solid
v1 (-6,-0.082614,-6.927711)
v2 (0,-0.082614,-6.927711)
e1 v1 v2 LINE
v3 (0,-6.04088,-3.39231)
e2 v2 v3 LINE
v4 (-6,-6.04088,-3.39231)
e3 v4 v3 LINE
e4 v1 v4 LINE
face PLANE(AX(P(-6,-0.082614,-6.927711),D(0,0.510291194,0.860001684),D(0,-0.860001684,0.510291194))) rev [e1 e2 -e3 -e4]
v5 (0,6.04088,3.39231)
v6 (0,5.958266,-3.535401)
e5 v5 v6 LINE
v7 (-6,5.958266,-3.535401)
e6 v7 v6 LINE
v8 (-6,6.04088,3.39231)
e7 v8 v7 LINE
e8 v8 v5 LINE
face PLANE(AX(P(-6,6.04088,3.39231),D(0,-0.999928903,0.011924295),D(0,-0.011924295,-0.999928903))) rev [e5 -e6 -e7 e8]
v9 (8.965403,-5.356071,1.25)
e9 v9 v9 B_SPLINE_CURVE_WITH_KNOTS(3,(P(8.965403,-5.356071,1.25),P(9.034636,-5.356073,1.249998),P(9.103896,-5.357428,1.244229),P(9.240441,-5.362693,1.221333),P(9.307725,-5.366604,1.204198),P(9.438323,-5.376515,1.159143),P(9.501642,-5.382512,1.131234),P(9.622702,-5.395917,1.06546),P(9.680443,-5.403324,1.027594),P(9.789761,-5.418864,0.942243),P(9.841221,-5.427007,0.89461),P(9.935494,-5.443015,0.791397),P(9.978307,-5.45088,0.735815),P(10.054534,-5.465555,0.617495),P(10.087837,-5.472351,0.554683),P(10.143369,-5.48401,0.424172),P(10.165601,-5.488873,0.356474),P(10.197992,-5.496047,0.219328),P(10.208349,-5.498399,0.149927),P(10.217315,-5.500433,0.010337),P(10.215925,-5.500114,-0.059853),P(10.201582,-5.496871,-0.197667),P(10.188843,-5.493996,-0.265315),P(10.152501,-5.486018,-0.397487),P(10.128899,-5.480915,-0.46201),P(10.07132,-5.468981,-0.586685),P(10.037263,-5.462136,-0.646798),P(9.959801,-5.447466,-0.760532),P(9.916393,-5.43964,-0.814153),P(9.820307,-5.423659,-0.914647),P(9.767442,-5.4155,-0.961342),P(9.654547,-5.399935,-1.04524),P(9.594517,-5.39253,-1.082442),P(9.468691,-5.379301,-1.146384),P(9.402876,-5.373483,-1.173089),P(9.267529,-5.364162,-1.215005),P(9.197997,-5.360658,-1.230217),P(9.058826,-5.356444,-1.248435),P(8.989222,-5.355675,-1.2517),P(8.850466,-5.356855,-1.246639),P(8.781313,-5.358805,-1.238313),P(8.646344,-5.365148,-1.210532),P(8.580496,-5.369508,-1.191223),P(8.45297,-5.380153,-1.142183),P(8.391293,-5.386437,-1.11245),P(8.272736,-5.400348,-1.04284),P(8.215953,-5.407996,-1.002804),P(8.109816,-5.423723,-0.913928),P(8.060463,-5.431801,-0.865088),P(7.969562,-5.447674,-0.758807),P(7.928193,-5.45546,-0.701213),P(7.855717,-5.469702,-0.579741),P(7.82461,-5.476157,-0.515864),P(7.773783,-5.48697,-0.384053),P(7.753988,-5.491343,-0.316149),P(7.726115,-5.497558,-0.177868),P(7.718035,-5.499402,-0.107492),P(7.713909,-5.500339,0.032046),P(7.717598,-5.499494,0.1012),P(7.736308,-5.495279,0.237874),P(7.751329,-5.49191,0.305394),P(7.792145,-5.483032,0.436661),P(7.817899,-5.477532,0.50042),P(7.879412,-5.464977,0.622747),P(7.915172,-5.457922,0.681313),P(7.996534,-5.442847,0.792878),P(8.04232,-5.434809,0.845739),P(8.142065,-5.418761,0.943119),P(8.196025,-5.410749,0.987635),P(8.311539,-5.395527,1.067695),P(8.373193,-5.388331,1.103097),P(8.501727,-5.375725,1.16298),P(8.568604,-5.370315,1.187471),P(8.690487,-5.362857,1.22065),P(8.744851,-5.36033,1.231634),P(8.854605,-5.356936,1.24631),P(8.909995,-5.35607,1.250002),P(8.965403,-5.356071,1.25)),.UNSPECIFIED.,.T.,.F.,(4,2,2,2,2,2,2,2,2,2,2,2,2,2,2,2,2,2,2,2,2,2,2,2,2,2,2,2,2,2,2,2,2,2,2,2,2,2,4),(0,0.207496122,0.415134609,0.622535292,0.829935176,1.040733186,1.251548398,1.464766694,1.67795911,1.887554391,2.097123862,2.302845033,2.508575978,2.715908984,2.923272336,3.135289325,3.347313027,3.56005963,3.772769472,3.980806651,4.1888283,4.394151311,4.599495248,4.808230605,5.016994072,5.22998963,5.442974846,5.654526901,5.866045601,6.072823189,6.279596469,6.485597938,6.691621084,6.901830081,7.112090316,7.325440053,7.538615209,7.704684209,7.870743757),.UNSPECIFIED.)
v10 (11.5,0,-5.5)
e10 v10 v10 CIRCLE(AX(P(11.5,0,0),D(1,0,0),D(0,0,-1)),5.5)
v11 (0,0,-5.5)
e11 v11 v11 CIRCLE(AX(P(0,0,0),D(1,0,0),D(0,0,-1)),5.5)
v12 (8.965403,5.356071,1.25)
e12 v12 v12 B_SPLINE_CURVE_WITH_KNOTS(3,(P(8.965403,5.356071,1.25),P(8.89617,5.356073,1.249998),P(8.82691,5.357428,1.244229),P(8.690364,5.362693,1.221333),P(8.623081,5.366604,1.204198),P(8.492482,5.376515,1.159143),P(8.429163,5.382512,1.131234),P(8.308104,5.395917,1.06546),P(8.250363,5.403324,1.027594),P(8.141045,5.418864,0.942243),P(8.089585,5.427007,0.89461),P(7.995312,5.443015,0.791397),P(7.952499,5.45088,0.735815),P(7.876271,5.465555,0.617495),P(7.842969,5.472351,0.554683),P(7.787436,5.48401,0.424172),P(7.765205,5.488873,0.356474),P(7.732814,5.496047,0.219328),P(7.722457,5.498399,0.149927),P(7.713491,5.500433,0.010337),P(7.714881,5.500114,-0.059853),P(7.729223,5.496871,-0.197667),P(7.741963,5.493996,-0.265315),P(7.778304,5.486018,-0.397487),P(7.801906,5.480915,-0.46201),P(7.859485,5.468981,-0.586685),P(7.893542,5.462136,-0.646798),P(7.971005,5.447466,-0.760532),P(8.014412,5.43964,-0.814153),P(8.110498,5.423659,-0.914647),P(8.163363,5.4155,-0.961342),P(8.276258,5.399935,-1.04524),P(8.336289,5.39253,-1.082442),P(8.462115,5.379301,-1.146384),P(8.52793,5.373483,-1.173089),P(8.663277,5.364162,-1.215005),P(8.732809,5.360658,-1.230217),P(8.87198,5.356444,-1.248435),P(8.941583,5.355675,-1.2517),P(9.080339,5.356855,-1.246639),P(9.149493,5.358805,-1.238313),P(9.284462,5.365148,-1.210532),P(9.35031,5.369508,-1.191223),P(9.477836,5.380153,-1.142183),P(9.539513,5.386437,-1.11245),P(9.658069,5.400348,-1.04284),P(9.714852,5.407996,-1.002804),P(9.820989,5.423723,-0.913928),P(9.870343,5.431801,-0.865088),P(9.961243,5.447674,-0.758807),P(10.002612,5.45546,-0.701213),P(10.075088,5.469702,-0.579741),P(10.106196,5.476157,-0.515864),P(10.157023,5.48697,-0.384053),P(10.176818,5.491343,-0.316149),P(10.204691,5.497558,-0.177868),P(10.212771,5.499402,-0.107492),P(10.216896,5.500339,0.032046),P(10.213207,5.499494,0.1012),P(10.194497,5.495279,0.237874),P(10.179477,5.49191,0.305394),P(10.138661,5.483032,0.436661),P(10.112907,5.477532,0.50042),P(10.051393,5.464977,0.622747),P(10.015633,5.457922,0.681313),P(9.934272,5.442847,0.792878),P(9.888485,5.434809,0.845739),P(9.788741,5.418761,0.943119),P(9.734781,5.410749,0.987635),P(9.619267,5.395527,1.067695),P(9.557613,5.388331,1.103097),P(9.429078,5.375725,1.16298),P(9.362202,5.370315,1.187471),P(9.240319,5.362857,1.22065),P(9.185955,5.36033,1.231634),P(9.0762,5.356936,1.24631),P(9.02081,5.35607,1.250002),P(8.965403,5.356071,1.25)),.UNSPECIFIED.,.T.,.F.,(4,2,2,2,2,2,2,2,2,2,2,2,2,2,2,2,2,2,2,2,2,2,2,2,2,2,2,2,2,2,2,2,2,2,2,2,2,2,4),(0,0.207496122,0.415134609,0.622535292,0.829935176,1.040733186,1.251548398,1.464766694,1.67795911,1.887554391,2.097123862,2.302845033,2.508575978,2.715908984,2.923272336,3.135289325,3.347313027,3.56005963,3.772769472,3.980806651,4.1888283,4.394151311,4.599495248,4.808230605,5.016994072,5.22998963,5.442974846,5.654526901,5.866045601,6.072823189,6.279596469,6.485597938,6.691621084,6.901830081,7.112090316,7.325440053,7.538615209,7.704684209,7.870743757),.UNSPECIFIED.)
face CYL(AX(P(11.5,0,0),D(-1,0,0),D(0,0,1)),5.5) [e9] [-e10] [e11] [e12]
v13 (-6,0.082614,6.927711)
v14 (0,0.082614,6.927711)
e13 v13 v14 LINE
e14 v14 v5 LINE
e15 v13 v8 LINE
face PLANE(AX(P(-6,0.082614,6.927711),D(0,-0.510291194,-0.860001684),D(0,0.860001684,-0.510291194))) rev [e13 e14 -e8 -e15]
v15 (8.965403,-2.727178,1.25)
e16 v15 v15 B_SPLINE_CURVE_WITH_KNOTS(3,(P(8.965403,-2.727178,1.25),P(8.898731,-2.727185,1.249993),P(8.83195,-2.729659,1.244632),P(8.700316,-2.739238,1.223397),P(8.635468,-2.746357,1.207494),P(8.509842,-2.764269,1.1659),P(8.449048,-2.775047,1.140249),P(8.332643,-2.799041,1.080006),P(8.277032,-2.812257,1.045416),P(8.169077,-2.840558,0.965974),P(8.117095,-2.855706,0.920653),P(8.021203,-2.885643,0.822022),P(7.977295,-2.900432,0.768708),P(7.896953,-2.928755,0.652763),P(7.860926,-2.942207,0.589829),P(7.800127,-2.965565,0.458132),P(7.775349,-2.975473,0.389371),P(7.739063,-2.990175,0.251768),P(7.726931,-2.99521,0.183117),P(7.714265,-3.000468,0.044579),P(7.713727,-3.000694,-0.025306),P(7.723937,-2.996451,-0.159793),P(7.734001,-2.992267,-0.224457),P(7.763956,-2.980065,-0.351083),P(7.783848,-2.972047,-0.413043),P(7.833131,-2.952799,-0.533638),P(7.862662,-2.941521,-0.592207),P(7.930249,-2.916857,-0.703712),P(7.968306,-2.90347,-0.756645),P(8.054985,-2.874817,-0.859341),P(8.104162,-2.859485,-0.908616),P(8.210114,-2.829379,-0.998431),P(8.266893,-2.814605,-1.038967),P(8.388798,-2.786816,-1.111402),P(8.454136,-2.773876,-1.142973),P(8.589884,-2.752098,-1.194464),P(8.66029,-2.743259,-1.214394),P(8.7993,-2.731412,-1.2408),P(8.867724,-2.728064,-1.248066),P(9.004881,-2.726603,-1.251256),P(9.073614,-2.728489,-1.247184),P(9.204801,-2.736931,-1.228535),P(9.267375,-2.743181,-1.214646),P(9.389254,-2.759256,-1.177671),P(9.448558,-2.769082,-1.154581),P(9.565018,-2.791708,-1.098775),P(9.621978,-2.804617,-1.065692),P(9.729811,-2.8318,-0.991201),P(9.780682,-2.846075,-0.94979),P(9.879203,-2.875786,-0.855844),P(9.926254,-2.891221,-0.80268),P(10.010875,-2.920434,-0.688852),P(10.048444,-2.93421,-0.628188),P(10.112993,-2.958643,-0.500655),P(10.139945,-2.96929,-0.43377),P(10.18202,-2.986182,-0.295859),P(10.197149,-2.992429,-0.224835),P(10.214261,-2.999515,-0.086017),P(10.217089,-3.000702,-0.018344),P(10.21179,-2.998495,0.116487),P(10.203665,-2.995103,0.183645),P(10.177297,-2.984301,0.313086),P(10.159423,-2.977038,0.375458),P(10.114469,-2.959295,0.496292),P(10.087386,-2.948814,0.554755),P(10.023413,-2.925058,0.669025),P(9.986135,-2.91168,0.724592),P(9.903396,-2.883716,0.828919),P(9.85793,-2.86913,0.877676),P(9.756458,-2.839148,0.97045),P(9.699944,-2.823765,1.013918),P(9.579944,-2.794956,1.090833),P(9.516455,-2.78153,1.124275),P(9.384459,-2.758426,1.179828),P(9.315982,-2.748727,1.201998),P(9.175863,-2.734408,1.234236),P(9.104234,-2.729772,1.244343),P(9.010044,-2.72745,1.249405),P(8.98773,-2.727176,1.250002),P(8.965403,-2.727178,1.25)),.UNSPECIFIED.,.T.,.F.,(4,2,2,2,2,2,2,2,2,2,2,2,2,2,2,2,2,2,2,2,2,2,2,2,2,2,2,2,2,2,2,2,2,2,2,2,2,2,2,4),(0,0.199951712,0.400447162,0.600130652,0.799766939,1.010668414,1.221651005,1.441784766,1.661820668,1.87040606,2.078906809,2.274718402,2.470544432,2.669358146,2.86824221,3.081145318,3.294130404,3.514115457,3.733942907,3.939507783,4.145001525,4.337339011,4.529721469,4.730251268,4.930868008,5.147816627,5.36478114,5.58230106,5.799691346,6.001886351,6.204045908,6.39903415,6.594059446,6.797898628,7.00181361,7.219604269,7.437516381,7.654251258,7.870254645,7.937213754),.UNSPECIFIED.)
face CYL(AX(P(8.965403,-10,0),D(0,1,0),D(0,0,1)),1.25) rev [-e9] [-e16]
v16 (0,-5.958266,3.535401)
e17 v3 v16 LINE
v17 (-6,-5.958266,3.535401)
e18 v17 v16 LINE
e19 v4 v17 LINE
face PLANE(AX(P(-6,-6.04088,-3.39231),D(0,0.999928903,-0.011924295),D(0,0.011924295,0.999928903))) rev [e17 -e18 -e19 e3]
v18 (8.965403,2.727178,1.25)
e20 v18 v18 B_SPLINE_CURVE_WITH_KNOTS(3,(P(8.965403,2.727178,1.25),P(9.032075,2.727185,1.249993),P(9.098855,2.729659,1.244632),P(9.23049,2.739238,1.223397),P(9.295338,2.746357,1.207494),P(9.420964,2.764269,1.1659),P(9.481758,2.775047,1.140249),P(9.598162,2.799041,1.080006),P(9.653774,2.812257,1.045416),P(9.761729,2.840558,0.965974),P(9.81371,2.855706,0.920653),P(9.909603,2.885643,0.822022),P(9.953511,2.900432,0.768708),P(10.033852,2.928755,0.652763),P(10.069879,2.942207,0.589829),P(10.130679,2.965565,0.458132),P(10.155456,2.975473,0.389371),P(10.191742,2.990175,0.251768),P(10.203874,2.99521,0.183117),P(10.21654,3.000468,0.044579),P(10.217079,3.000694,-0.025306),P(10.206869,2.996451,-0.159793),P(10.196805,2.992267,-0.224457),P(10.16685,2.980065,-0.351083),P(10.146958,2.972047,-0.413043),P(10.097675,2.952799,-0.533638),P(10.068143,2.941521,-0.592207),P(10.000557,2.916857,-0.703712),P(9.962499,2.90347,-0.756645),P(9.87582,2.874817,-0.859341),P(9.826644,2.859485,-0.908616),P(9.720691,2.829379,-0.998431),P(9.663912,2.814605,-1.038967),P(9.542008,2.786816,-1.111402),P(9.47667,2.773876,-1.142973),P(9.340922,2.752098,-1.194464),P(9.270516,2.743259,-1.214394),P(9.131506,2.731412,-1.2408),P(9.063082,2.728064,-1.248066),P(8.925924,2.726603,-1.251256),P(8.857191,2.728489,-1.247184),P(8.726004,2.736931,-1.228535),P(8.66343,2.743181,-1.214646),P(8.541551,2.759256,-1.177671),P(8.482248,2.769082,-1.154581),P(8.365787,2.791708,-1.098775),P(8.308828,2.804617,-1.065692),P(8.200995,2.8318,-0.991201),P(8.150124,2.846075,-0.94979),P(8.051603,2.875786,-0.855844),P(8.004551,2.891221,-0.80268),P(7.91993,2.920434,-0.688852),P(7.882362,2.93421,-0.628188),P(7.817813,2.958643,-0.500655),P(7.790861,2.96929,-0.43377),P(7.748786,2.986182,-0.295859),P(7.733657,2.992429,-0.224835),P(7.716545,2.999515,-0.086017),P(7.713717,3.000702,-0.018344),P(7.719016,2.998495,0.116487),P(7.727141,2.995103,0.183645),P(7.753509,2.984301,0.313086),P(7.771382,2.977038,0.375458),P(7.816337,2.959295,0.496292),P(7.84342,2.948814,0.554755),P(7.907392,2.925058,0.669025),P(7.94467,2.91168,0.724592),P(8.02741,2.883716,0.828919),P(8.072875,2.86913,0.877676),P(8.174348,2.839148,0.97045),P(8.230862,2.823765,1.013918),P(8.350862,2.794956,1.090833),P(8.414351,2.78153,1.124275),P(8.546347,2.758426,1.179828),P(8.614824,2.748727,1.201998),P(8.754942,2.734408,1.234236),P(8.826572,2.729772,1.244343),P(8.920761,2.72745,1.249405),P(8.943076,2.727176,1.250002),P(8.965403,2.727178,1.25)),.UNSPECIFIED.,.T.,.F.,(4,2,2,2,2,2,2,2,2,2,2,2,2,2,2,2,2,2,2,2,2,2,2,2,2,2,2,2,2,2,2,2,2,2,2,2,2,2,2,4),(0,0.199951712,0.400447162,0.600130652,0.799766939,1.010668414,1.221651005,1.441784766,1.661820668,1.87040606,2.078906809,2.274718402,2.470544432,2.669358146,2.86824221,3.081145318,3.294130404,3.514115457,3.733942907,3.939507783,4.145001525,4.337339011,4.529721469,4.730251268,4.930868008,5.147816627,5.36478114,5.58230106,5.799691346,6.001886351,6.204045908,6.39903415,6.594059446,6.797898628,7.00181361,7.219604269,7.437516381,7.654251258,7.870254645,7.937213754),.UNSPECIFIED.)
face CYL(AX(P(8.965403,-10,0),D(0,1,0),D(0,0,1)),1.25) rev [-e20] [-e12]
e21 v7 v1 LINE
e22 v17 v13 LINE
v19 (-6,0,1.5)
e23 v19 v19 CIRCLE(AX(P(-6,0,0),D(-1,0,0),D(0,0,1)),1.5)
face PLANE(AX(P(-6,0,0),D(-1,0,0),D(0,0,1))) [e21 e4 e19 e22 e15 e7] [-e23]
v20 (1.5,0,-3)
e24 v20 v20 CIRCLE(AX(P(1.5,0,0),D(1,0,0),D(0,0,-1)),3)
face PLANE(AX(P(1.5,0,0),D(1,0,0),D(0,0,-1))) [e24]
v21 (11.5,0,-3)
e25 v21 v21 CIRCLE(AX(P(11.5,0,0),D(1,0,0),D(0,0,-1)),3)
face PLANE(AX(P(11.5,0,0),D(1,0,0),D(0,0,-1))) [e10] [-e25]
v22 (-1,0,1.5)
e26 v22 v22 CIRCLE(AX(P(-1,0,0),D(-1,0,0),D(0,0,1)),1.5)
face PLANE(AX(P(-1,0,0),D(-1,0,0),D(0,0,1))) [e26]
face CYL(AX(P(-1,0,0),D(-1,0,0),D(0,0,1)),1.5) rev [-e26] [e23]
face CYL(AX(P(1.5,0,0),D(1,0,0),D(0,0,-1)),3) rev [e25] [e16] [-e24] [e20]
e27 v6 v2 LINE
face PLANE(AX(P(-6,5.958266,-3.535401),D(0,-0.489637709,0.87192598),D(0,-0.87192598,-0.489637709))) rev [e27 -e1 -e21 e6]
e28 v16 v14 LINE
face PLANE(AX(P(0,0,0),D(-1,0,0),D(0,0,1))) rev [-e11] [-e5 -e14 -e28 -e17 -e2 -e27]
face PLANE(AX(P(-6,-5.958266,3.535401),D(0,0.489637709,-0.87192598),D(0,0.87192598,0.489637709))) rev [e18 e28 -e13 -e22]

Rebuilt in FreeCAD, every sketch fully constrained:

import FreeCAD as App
import Part
import Sketcher
from FreeCAD import Vector

doc = App.newDocument("Part")
params = doc.addObject("Spreadsheet::Sheet", "Params")
for row, (alias, value) in enumerate([
    ("sketch1_diameter", "11 mm"),
    ("pad1_length", "11.5 mm"),
    ("pad2_length", "6 mm"),
    ("sketch3_diameter", "6 mm"),
    ("pocket1_length", "10 mm"),
    ("sketch4_diameter", "2.5 mm"),
    ("pocket2_length", "20 mm"),
    ("sketch5_diameter", "3 mm"),
    ("pocket3_length", "5 mm"),
], start=1):
    params.set(f"A{row}", alias)
    params.set(f"B{row}", "=" + value)
    params.setAlias(f"B{row}", alias)

body = doc.addObject("PartDesign::Body", "Body")

# Sketch on YZ plane
sketch1 = body.newObject("Sketcher::SketchObject", "Sketch")
sketch1.AttachmentSupport = (doc.getObject("YZ_Plane"), [""])
sketch1.MapMode = "FlatFace"
sketch1.addGeometry(Part.Circle(Vector(0, 0, 0), Vector(0, 0, 1), 5.5), False)
sketch1.addConstraint([
    Sketcher.Constraint("Coincident", 0, 3, -1, 1),
    Sketcher.Constraint("Diameter", 0, 11.0),
])
sketch1.setExpression("Constraints[1]", "Params.sketch1_diameter")
pad1 = body.newObject("PartDesign::Pad", "Pad")
pad1.Profile = sketch1
pad1.setExpression("Length", "Params.pad1_length")

# Sketch on YZ plane
sketch2 = body.newObject("Sketcher::SketchObject", "Sketch001")
sketch2.AttachmentSupport = (doc.getObject("YZ_Plane"), [""])
sketch2.MapMode = "FlatFace"
sketch2.addGeometry([
    Part.LineSegment(Vector(6.04088, 3.39231, 0), Vector(5.958266, -3.535401, 0)),  # 0
    Part.LineSegment(Vector(5.958266, -3.535401, 0), Vector(-0.082614, -6.927711, 0)),  # 1
    Part.LineSegment(Vector(-0.082614, -6.927711, 0), Vector(-6.04088, -3.39231, 0)),  # 2
    Part.LineSegment(Vector(-6.04088, -3.39231, 0), Vector(-5.958266, 3.535401, 0)),  # 3
    Part.LineSegment(Vector(-5.958266, 3.535401, 0), Vector(0.082614, 6.927711, 0)),  # 4
    Part.LineSegment(Vector(0.082614, 6.927711, 0), Vector(6.04088, 3.39231, 0)),  # 5
], False)
sketch2.addConstraint([
    Sketcher.Constraint("Coincident", 0, 2, 1, 1),
    Sketcher.Constraint("Coincident", 1, 2, 2, 1),
    Sketcher.Constraint("Coincident", 2, 2, 3, 1),
    Sketcher.Constraint("Coincident", 3, 2, 4, 1),
    Sketcher.Constraint("Coincident", 4, 2, 5, 1),
    Sketcher.Constraint("Coincident", 5, 2, 0, 1),
    Sketcher.Constraint("Symmetric", 0, 2, 3, 2, -1, 1),
    Sketcher.Constraint("Symmetric", 1, 2, 4, 2, -1, 1),
    Sketcher.Constraint("Symmetric", 2, 2, 5, 2, -1, 1),
    Sketcher.Constraint("Equal", 0, 1),
    Sketcher.Constraint("Equal", 1, 2),
    Sketcher.Constraint("DistanceY", 0, 2, -1, 1, 3.535401),
    Sketcher.Constraint("DistanceY", 1, 2, 2, 2, 3.535401),
    Sketcher.Constraint("DistanceY", 1, 2, -1, 1, 6.927711),
    Sketcher.Constraint("DistanceX", 2, 2, -1, 1, 6.04088),
])
pad2 = body.newObject("PartDesign::Pad", "Pad001")
pad2.Profile = sketch2
pad2.setExpression("Length", "Params.pad2_length")
pad2.Reversed = True

# Sketch on YZ plane
sketch3 = body.newObject("Sketcher::SketchObject", "Sketch002")
sketch3.AttachmentSupport = (doc.getObject("YZ_Plane"), [""])
sketch3.MapMode = "FlatFace"
sketch3.AttachmentOffset = App.Placement(Vector(0, 0, 11.5), App.Rotation())
sketch3.addGeometry(Part.Circle(Vector(0, 0, 0), Vector(0, 0, 1), 3), False)
sketch3.addConstraint([
    Sketcher.Constraint("Coincident", 0, 3, -1, 1),
    Sketcher.Constraint("Diameter", 0, 6.0),
])
sketch3.setExpression("Constraints[1]", "Params.sketch3_diameter")
pocket1 = body.newObject("PartDesign::Pocket", "Pocket")
pocket1.Profile = sketch3
pocket1.setExpression("Length", "Params.pocket1_length")

# Sketch on XZ plane
sketch4 = body.newObject("Sketcher::SketchObject", "Sketch003")
sketch4.AttachmentSupport = (doc.getObject("XZ_Plane"), [""])
sketch4.MapMode = "FlatFace"
sketch4.addGeometry(Part.Circle(Vector(8.965403, 0, 0), Vector(0, 0, 1), 1.25), False)
sketch4.addConstraint([
    Sketcher.Constraint("PointOnObject", 0, 3, -1),
    Sketcher.Constraint("Diameter", 0, 2.5),
    Sketcher.Constraint("DistanceX", -1, 1, 0, 3, 8.965403),
])
sketch4.setExpression("Constraints[1]", "Params.sketch4_diameter")
pocket2 = body.newObject("PartDesign::Pocket", "Pocket001")
pocket2.Profile = sketch4
pocket2.setExpression("Length", "Params.pocket2_length")
pocket2.Midplane = True

# Sketch on YZ plane
sketch5 = body.newObject("Sketcher::SketchObject", "Sketch004")
sketch5.AttachmentSupport = (doc.getObject("YZ_Plane"), [""])
sketch5.MapMode = "FlatFace"
sketch5.AttachmentOffset = App.Placement(Vector(0, 0, -6), App.Rotation())
sketch5.addGeometry(Part.Circle(Vector(0, 0, 0), Vector(0, 0, 1), 1.5), False)
sketch5.addConstraint([
    Sketcher.Constraint("Coincident", 0, 3, -1, 1),
    Sketcher.Constraint("Diameter", 0, 3.0),
])
sketch5.setExpression("Constraints[1]", "Params.sketch5_diameter")
pocket3 = body.newObject("PartDesign::Pocket", "Pocket002")
pocket3.Profile = sketch5
pocket3.setExpression("Length", "Params.pocket3_length")
pocket3.Reversed = True

doc.recompute()
